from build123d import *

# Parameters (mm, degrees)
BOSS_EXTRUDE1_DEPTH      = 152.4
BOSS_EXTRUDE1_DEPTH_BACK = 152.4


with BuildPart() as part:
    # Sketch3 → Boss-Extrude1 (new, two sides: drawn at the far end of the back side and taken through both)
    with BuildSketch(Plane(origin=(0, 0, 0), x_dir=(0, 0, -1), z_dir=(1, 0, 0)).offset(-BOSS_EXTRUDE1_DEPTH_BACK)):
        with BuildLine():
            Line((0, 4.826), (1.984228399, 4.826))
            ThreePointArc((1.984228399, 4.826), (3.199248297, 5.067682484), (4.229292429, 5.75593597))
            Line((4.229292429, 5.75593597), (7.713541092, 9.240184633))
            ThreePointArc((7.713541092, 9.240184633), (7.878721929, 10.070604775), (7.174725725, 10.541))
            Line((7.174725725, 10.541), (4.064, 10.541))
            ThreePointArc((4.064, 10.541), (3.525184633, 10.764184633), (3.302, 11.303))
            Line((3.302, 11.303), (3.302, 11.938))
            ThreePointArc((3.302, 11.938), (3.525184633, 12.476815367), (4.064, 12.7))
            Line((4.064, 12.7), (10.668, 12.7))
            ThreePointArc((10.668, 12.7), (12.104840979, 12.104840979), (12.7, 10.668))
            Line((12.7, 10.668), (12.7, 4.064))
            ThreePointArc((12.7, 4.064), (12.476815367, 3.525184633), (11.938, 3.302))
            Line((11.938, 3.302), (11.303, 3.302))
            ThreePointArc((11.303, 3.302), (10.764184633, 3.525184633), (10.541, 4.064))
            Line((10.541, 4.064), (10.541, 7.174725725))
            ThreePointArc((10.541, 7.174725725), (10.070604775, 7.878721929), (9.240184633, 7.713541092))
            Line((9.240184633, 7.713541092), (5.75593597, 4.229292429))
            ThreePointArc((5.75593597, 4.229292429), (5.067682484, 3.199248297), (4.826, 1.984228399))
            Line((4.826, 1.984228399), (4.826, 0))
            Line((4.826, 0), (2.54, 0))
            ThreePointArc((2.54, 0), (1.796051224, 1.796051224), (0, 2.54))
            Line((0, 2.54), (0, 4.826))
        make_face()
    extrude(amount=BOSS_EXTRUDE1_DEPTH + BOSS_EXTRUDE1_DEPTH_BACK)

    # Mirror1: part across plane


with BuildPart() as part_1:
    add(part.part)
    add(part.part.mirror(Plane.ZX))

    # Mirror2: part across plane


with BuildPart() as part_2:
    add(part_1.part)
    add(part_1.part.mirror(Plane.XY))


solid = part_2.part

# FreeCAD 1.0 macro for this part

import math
import FreeCAD as App
import Part
import Sketcher

V = App.Vector
Q = App.Units.Quantity

doc = App.newDocument("Part")
body = doc.addObject("PartDesign::Body", "Body")

sketch1 = doc.addObject("Sketcher::SketchObject", "Sketch")
body.addObject(sketch1)
sketch1.AttachmentSupport = (doc.YZ_Plane, [""])
sketch1.MapMode = "FlatFace"
sketch1.addGeometry([
    Part.LineSegment(V(4.8, -2, 0), V(4.8, 0, 0)),
    Part.LineSegment(V(4.8, 0, 0), V(2.5, 0, 0)),
    Part.ArcOfCircle(Part.Circle(V(0, 0, 0), V(0, 0, 1), 2.5), math.radians(-90), math.radians(0)),
    Part.LineSegment(V(0, -2.5, 0), V(0, -4.8, 0)),
    Part.LineSegment(V(0, -4.8, 0), V(2, -4.8, 0)),
    Part.ArcOfCircle(Part.Circle(V(2, -8, 0), V(0, 0, 1), 3.2), math.radians(45), math.radians(90)),
    Part.LineSegment(V(4.2, -5.8, 0), V(7.7, -9.2, 0)),
    Part.ArcOfCircle(Part.Circle(V(7.2, -9.8, 0), V(0, 0, 1), 0.8), math.radians(-90), math.radians(45)),
    Part.LineSegment(V(7.2, -10.5, 0), V(4.1, -10.5, 0)),
    Part.ArcOfCircle(Part.Circle(V(4.1, -11.3, 0), V(0, 0, 1), 0.8), math.radians(90), math.radians(180)),
    Part.LineSegment(V(3.3, -11.3, 0), V(3.3, -11.9, 0)),
    Part.ArcOfCircle(Part.Circle(V(4.1, -11.9, 0), V(0, 0, 1), 0.8), math.radians(-180), math.radians(-90)),
    Part.LineSegment(V(4.1, -12.7, 0), V(10.7, -12.7, 0)),
    Part.ArcOfCircle(Part.Circle(V(10.7, -10.7, 0), V(0, 0, 1), 2), math.radians(-90), math.radians(0)),
    Part.LineSegment(V(12.7, -10.7, 0), V(12.7, -4.1, 0)),
    Part.ArcOfCircle(Part.Circle(V(11.9, -4.1, 0), V(0, 0, 1), 0.8), math.radians(0), math.radians(90)),
    Part.LineSegment(V(11.9, -3.3, 0), V(11.3, -3.3, 0)),
    Part.ArcOfCircle(Part.Circle(V(11.3, -4.1, 0), V(0, 0, 1), 0.8), math.radians(90), math.radians(180)),
    Part.LineSegment(V(10.5, -4.1, 0), V(10.5, -7.2, 0)),
    Part.ArcOfCircle(Part.Circle(V(9.8, -7.2, 0), V(0, 0, 1), 0.8), math.radians(-135), math.radians(0)),
    Part.LineSegment(V(9.2, -7.7, 0), V(5.8, -4.2, 0)),
    Part.ArcOfCircle(Part.Circle(V(8, -2, 0), V(0, 0, 1), 3.2), math.radians(180), math.radians(225)),
], False)
sketch1.addConstraint([
    Sketcher.Constraint("Coincident", 0, 2, 1, 1),
    Sketcher.Constraint("Coincident", 1, 2, 2, 2),
    Sketcher.Constraint("Coincident", 2, 1, 3, 1),
    Sketcher.Constraint("Coincident", 3, 2, 4, 1),
    Sketcher.Constraint("Tangent", 4, 2, 5, 2),
    Sketcher.Constraint("Tangent", 5, 1, 6, 1),
    Sketcher.Constraint("Tangent", 6, 2, 7, 2),
    Sketcher.Constraint("Tangent", 7, 1, 8, 1),
    Sketcher.Constraint("Tangent", 8, 2, 9, 1),
    Sketcher.Constraint("Tangent", 9, 2, 10, 1),
    Sketcher.Constraint("Tangent", 10, 2, 11, 1),
    Sketcher.Constraint("Tangent", 11, 2, 12, 1),
    Sketcher.Constraint("Tangent", 12, 2, 13, 1),
    Sketcher.Constraint("Tangent", 13, 2, 14, 1),
    Sketcher.Constraint("Tangent", 14, 2, 15, 1),
    Sketcher.Constraint("Tangent", 15, 2, 16, 1),
    Sketcher.Constraint("Tangent", 16, 2, 17, 1),
    Sketcher.Constraint("Tangent", 17, 2, 18, 1),
    Sketcher.Constraint("Tangent", 18, 2, 19, 2),
    Sketcher.Constraint("Tangent", 19, 1, 20, 1),
    Sketcher.Constraint("Tangent", 20, 2, 21, 2),
    Sketcher.Constraint("Tangent", 21, 1, 0, 1),
    Sketcher.Constraint("Vertical", 0),
    Sketcher.Constraint("Horizontal", 1),
    Sketcher.Constraint("Vertical", 3),
    Sketcher.Constraint("Horizontal", 4),
    Sketcher.Constraint("Horizontal", 8),
    Sketcher.Constraint("Vertical", 10),
    Sketcher.Constraint("Horizontal", 12),
    Sketcher.Constraint("Vertical", 14),
    Sketcher.Constraint("Horizontal", 16),
    Sketcher.Constraint("Vertical", 18),
    Sketcher.Constraint("Coincident", 2, 3, -1, 1),
    Sketcher.Constraint("Equal", 7, 9),
    Sketcher.Constraint("Equal", 9, 11),
    Sketcher.Constraint("Equal", 11, 15),
    Sketcher.Constraint("Equal", 15, 17),
    Sketcher.Constraint("Equal", 17, 19),
    Sketcher.Constraint("Equal", 5, 21),
    Sketcher.Constraint("PointOnObject", 0, 2, -1),
    Sketcher.Constraint("PointOnObject", 2, 1, -2),
    Sketcher.Constraint("Parallel", 6, 20),
    Sketcher.Constraint("Equal", 4, 0),
    Sketcher.Constraint("Equal", 1, 3),
    Sketcher.Constraint("Equal", 16, 10),
    Sketcher.Constraint("Equal", 12, 14),
    Sketcher.Constraint("Equal", 8, 18),
    Sketcher.Constraint("Equal", 6, 20),
    Sketcher.Constraint("Radius", 2, Q("0.1 in")),
    Sketcher.Constraint("Radius", 7, Q("0.03 in")),
    Sketcher.Constraint("Radius", 13, Q("0.08 in")),
    Sketcher.Constraint("Radius", 5, Q("0.125 in")),
    Sketcher.Constraint("DistanceX", 1, 2, 1, 1, Q("0.09 in")),
    Sketcher.Constraint("DistanceX", 12, 1, 12, 2, Q("0.26 in")),
    Sketcher.Constraint("DistanceY", 11, 2, -1, 1, Q("0.5 in")),
    Sketcher.Constraint("DistanceY", 8, 2, 5, 3, Q("0.1 in")),
    Sketcher.Constraint("DistanceX", 4, 1, 4, 2, Q("1.984228 mm")),
])
pad1 = doc.addObject("PartDesign::Pad", "Pad")
body.addObject(pad1)
pad1.Profile = sketch1
pad1.Type = "TwoLengths"
pad1.Length = Q("6 in")
pad1.Length2 = Q("6 in")
body2 = doc.addObject("PartDesign::Body", "Body001")
doc.recompute()

body2.BaseFeature = body
doc.recompute()

mirroring = doc.addObject("Part::Mirroring", "Mirroring")
mirroring.Source = body
mirroring.Base = V(0, 0, 0)
mirroring.Normal = V(0, 1, 0)
body3 = doc.addObject("PartDesign::Body", "Body002")
body3.BaseFeature = mirroring
boolean = doc.addObject("PartDesign::Boolean", "Boolean")
body2.addObject(boolean)
boolean.Type = "Fuse"
boolean.addObjects([body3])
doc.recompute()
body4 = doc.addObject("PartDesign::Body", "Body003")
doc.recompute()

body4.BaseFeature = body2
doc.recompute()

mirroring2 = doc.addObject("Part::Mirroring", "Mirroring001")
mirroring2.Source = body2
mirroring2.Base = V(0, 0, 0)
mirroring2.Normal = V(0, 0, 1)
body5 = doc.addObject("PartDesign::Body", "Body004")
body5.BaseFeature = mirroring2
boolean2 = doc.addObject("PartDesign::Boolean", "Boolean001")
body4.addObject(boolean2)
boolean2.Type = "Fuse"
boolean2.addObjects([body5])
doc.recompute()
mirroring.Visibility = False
mirroring2.Visibility = False

doc.recompute()
